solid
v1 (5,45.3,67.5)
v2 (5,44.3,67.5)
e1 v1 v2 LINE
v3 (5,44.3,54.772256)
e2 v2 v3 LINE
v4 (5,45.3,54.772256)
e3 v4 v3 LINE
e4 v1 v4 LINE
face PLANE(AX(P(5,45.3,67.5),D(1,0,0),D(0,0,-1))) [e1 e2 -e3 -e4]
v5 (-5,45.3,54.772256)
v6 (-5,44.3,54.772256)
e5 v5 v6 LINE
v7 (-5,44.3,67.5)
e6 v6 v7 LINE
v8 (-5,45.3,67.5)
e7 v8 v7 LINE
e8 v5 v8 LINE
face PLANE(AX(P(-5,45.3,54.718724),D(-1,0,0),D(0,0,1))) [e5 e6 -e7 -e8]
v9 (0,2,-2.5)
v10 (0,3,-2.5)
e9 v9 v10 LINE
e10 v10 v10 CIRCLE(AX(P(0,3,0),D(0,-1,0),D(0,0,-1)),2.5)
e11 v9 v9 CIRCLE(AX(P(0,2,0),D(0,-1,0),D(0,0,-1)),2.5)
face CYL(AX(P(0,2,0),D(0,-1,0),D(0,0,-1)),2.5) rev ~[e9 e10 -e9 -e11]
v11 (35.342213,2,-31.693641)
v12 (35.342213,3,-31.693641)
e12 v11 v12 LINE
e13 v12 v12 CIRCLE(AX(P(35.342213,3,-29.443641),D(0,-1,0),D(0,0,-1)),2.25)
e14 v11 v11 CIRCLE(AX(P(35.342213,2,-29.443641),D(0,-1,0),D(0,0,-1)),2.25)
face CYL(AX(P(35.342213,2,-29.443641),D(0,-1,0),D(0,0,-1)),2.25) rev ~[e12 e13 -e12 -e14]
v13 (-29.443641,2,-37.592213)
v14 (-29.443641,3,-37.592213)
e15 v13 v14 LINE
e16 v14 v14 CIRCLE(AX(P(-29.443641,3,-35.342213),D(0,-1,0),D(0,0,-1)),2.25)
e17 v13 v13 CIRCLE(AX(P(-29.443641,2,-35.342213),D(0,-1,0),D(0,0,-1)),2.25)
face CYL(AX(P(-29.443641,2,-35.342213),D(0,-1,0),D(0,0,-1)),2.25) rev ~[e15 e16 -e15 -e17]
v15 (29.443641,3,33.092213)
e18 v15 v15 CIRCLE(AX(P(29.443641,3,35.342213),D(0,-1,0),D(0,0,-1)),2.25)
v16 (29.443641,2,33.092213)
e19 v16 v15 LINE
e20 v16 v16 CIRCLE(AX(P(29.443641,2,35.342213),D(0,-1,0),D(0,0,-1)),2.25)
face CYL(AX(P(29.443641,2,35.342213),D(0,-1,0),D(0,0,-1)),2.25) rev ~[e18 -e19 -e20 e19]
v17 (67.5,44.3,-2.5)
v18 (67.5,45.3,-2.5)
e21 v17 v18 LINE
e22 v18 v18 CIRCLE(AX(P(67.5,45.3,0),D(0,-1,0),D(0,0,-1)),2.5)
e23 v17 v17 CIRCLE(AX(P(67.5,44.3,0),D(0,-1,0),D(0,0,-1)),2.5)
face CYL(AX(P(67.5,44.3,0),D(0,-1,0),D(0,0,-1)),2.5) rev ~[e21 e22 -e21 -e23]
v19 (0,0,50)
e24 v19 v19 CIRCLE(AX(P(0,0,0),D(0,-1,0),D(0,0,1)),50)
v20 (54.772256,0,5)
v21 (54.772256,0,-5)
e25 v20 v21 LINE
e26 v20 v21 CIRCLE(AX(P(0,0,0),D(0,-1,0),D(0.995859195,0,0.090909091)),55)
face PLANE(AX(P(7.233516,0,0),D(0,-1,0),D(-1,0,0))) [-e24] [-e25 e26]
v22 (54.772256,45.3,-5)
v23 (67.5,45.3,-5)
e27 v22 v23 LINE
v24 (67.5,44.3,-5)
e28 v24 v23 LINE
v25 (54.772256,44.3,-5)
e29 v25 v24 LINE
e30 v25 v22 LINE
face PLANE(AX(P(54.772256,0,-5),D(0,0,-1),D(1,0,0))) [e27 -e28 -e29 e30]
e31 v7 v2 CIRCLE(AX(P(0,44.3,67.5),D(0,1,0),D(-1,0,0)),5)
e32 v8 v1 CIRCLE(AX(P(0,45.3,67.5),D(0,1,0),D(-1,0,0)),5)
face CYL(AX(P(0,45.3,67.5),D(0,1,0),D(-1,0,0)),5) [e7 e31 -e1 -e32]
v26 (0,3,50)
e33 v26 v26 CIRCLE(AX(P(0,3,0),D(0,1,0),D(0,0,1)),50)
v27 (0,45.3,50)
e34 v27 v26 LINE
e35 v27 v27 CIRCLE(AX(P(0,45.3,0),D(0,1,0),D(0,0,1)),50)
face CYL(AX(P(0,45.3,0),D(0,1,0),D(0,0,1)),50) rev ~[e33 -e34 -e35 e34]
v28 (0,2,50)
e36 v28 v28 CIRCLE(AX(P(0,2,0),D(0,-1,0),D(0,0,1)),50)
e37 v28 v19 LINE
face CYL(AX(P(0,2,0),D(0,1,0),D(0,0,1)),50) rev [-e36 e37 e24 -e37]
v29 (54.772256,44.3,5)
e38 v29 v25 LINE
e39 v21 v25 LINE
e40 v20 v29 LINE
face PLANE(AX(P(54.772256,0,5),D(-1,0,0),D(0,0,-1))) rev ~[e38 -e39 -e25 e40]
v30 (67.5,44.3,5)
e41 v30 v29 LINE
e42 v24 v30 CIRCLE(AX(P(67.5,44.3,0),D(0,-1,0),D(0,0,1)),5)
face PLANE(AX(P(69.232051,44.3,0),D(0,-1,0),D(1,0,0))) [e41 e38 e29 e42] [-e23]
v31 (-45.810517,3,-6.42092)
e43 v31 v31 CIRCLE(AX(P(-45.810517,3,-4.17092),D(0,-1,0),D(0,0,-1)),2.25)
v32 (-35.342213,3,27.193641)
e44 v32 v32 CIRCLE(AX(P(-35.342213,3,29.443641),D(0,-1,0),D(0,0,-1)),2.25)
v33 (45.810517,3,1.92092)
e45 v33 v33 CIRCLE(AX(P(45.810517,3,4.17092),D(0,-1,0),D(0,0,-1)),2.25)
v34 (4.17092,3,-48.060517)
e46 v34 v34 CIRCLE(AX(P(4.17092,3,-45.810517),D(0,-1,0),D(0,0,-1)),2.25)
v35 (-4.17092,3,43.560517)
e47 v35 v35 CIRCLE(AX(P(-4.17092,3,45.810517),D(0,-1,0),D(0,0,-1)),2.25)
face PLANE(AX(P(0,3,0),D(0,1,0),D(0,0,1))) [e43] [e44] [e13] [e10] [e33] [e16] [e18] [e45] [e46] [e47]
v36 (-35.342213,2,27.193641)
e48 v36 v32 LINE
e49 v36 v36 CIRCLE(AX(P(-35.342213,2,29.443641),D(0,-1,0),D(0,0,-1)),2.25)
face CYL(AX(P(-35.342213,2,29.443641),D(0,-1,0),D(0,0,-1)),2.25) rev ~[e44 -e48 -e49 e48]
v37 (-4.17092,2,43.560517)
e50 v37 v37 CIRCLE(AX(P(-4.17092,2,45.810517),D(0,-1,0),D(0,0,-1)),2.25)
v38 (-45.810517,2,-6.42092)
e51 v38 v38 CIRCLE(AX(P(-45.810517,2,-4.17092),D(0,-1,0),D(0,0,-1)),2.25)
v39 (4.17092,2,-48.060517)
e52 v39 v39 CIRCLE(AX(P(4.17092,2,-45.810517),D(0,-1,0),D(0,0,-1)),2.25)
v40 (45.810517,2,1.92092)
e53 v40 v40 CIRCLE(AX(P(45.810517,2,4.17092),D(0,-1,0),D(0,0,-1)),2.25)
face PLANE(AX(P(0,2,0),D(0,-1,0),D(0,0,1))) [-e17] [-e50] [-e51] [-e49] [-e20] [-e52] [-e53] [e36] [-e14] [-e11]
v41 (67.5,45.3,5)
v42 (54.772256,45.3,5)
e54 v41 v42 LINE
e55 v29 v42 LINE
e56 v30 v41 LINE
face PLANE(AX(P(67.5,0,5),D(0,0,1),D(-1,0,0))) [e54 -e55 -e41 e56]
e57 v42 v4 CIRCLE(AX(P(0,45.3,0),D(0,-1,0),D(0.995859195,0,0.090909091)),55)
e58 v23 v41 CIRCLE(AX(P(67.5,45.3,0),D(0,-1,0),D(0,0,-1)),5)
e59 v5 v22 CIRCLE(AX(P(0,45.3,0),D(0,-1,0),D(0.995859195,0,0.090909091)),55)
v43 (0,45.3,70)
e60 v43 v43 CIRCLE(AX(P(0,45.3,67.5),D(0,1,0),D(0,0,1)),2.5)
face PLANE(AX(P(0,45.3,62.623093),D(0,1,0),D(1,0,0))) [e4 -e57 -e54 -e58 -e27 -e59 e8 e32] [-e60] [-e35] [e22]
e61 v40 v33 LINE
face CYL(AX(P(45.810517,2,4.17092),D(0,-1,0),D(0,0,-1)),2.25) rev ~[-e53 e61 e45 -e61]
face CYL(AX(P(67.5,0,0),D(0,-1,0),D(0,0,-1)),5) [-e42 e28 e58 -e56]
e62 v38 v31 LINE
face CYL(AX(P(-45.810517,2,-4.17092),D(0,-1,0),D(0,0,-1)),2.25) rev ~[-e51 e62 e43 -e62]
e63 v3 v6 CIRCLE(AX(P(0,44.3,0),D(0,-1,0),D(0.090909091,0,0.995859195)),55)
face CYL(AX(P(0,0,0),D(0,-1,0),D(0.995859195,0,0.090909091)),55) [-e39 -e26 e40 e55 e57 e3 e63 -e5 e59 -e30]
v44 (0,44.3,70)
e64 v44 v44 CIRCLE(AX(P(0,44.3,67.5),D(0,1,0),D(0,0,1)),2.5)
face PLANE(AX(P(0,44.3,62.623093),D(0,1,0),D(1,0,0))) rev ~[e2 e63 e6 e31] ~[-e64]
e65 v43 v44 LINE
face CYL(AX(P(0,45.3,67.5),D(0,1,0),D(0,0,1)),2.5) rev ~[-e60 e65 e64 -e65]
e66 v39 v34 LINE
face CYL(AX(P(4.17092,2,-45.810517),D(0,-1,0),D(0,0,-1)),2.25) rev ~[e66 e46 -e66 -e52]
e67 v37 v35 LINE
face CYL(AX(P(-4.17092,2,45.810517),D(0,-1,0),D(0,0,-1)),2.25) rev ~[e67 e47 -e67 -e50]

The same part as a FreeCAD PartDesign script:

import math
import FreeCAD as App
import Part
import Sketcher
from FreeCAD import Vector

doc = App.newDocument("Part")
params = doc.addObject("Spreadsheet::Sheet", "Params")
for row, (alias, value) in enumerate([
    ("sketch1_radius", "55 mm"),
    ("sketch1_radius2", "5 mm"),
    ("pad1_length", "45.3 mm"),
    ("sketch2_diameter", "100 mm"),
    ("pocket1_length", "42.3 mm"),
    ("sketch3_radius", "5 mm"),
    ("pocket2_length", "44.3 mm"),
    ("sketch4_diameter", "100 mm"),
    ("pocket3_length", "2 mm"),
    ("sketch5_diameter", "4.5 mm"),
    ("sketch6_diameter", "5 mm"),
    ("sketch7_diameter", "5 mm"),
    ("sketch8_radius", "5 mm"),
    ("pad2_length", "1 mm"),
    ("sketch9_diameter", "5 mm"),
    ("pocket7_length", "1 mm"),
], start=1):
    params.set(f"A{row}", alias)
    params.set(f"B{row}", "=" + value)
    params.setAlias(f"B{row}", alias)

body = doc.addObject("PartDesign::Body", "Body")

sketch1 = body.newObject("Sketcher::SketchObject", "Sketch")
sketch1.AttachmentSupport = (doc.getObject("XZ_Plane"), [""])
sketch1.MapMode = "FlatFace"
sketch1.addGeometry([
    Part.LineSegment(Vector(67.5, -5, 0), Vector(54.772256, -5, 0)),
    Part.ArcOfCircle(Part.Circle(Vector(0, 0, 0), Vector(0, 0, 1), 55), math.radians(5.215909), math.radians(354.784091)),
    Part.LineSegment(Vector(54.772256, 5, 0), Vector(67.5, 5, 0)),
    Part.ArcOfCircle(Part.Circle(Vector(67.5, 0, 0), Vector(0, 0, 1), 5), math.radians(-90), math.radians(90)),
], False)
sketch1.addConstraint([
    Sketcher.Constraint("Coincident", 0, 2, 1, 2),
    Sketcher.Constraint("Coincident", 1, 1, 2, 1),
    Sketcher.Constraint("Tangent", 2, 2, 3, 2),
    Sketcher.Constraint("Tangent", 3, 1, 0, 1),
    Sketcher.Constraint("Horizontal", 0),
    Sketcher.Constraint("Horizontal", 2),
    Sketcher.Constraint("Coincident", 1, 3, -1, 1),
    Sketcher.Constraint("PointOnObject", 3, 3, -1),
    Sketcher.Constraint("Radius", 1, 55.0),
    Sketcher.Constraint("Radius", 3, 5.0),
    Sketcher.Constraint("DistanceX", -1, 1, 3, 3, 67.5),
])
sketch1.setExpression("Constraints[8]", "Params.sketch1_radius")
sketch1.setExpression("Constraints[9]", "Params.sketch1_radius2")
pad1 = body.newObject("PartDesign::Pad", "Pad")
pad1.Profile = sketch1
pad1.setExpression("Length", "Params.pad1_length")
pad1.Reversed = True

sketch2 = body.newObject("Sketcher::SketchObject", "Sketch001")
sketch2.AttachmentSupport = (doc.getObject("XZ_Plane"), [""])
sketch2.MapMode = "FlatFace"
sketch2.AttachmentOffset = App.Placement(Vector(0, 0, -45.3), App.Rotation())
sketch2.addGeometry(Part.Circle(Vector(0, 0, 0), Vector(0, 0, 1), 50), False)
sketch2.addConstraint([
    Sketcher.Constraint("Coincident", 0, 3, -1, 1),
    Sketcher.Constraint("Diameter", 0, 100.0),
])
sketch2.setExpression("Constraints[1]", "Params.sketch2_diameter")
pocket1 = body.newObject("PartDesign::Pocket", "Pocket")
pocket1.Profile = sketch2
pocket1.setExpression("Length", "Params.pocket1_length")
pocket1.Reversed = True

sketch3 = body.newObject("Sketcher::SketchObject", "Sketch002")
sketch3.AttachmentSupport = (doc.getObject("XZ_Plane"), [""])
sketch3.MapMode = "FlatFace"
sketch3.addGeometry([
    Part.ArcOfCircle(Part.Circle(Vector(67.5, 0, 0), Vector(0, 0, 1), 5), math.radians(-90), math.radians(90)),
    Part.LineSegment(Vector(67.5, 5, 0), Vector(54.772256, 5, 0)),
    Part.LineSegment(Vector(54.772256, 5, 0), Vector(54.772256, -5, 0)),
    Part.LineSegment(Vector(54.772256, -5, 0), Vector(67.5, -5, 0)),
], False)
sketch3.addConstraint([
    Sketcher.Constraint("Tangent", 0, 2, 1, 1),
    Sketcher.Constraint("Coincident", 1, 2, 2, 1),
    Sketcher.Constraint("Coincident", 2, 2, 3, 1),
    Sketcher.Constraint("Tangent", 3, 2, 0, 1),
    Sketcher.Constraint("Horizontal", 1),
    Sketcher.Constraint("Vertical", 2),
    Sketcher.Constraint("Horizontal", 3),
    Sketcher.Constraint("PointOnObject", 0, 3, -1),
    Sketcher.Constraint("Radius", 0, 5.0),
    Sketcher.Constraint("DistanceX", -1, 1, 0, 3, 67.5),
    Sketcher.Constraint("DistanceX", 1, 2, 1, 1, 12.727744),
])
sketch3.setExpression("Constraints[8]", "Params.sketch3_radius")
pocket2 = body.newObject("PartDesign::Pocket", "Pocket001")
pocket2.Profile = sketch3
pocket2.setExpression("Length", "Params.pocket2_length")

sketch4 = body.newObject("Sketcher::SketchObject", "Sketch003")
sketch4.AttachmentSupport = (doc.getObject("XZ_Plane"), [""])
sketch4.MapMode = "FlatFace"
sketch4.AttachmentOffset = App.Placement(Vector(0, 0, -2), App.Rotation())
sketch4.addGeometry(Part.Circle(Vector(0, 0, 0), Vector(0, 0, 1), 50), False)
sketch4.addConstraint([
    Sketcher.Constraint("Coincident", 0, 3, -1, 1),
    Sketcher.Constraint("Diameter", 0, 100.0),
])
sketch4.setExpression("Constraints[1]", "Params.sketch4_diameter")
pocket3 = body.newObject("PartDesign::Pocket", "Pocket002")
pocket3.Profile = sketch4
pocket3.setExpression("Length", "Params.pocket3_length")
pocket3.Reversed = True

sketch5 = body.newObject("Sketcher::SketchObject", "Sketch004")
sketch5.AttachmentSupport = (doc.getObject("XZ_Plane"), [""])
sketch5.MapMode = "FlatFace"
sketch5.AttachmentOffset = App.Placement(Vector(0, 0, -2), App.Rotation())
sketch5.addGeometry([
    Part.Circle(Vector(4.17092, -45.810517, 0), Vector(0, 0, 1), 2.25),
    Part.Circle(Vector(-29.443641, -35.342213, 0), Vector(0, 0, 1), 2.25),
    Part.Circle(Vector(-45.810517, -4.17092, 0), Vector(0, 0, 1), 2.25),
    Part.Circle(Vector(-35.342213, 29.443641, 0), Vector(0, 0, 1), 2.25),
    Part.Circle(Vector(-4.17092, 45.810517, 0), Vector(0, 0, 1), 2.25),
    Part.Circle(Vector(29.443641, 35.342213, 0), Vector(0, 0, 1), 2.25),
    Part.Circle(Vector(45.810517, 4.17092, 0), Vector(0, 0, 1), 2.25),
    Part.Circle(Vector(35.342213, -29.443641, 0), Vector(0, 0, 1), 2.25),
], False)
sketch5.addConstraint([
    Sketcher.Constraint("Equal", 0, 1),
    Sketcher.Constraint("Equal", 1, 2),
    Sketcher.Constraint("Equal", 2, 3),
    Sketcher.Constraint("Equal", 3, 4),
    Sketcher.Constraint("Equal", 4, 5),
    Sketcher.Constraint("Equal", 5, 6),
    Sketcher.Constraint("Equal", 6, 7),
    Sketcher.Constraint("Symmetric", 0, 3, 4, 3, -1, 1),
    Sketcher.Constraint("Symmetric", 1, 3, 5, 3, -1, 1),
    Sketcher.Constraint("Symmetric", 2, 3, 6, 3, -1, 1),
    Sketcher.Constraint("Symmetric", 3, 3, 7, 3, -1, 1),
    Sketcher.Constraint("Diameter", 0, 4.5),
    Sketcher.Constraint("DistanceX", -1, 1, 0, 3, 4.17092),
    Sketcher.Constraint("DistanceX", 1, 3, -1, 1, 29.443641),
    Sketcher.Constraint("DistanceY", 2, 3, -1, 1, 4.17092),
    Sketcher.Constraint("DistanceY", -1, 1, 3, 3, 29.443641),
    Sketcher.Constraint("DistanceX", 3, 3, 1, 3, 5.898572),
    Sketcher.Constraint("DistanceY", 1, 3, 4, 3, 81.152729),
    Sketcher.Constraint("DistanceY", 3, 3, 5, 3, 5.898572),
    Sketcher.Constraint("DistanceX", 3, 3, 6, 3, 81.152729),
])
sketch5.setExpression("Constraints[11]", "Params.sketch5_diameter")
pocket4 = body.newObject("PartDesign::Pocket", "Pocket003")
pocket4.Profile = sketch5
pocket4.Type = "ThroughAll"

sketch6 = body.newObject("Sketcher::SketchObject", "Sketch005")
sketch6.AttachmentSupport = (doc.getObject("XZ_Plane"), [""])
sketch6.MapMode = "FlatFace"
sketch6.AttachmentOffset = App.Placement(Vector(0, 0, -2), App.Rotation())
sketch6.addGeometry(Part.Circle(Vector(0, 0, 0), Vector(0, 0, 1), 2.5), False)
sketch6.addConstraint([
    Sketcher.Constraint("Coincident", 0, 3, -1, 1),
    Sketcher.Constraint("Diameter", 0, 5.0),
])
sketch6.setExpression("Constraints[1]", "Params.sketch6_diameter")
pocket5 = body.newObject("PartDesign::Pocket", "Pocket004")
pocket5.Profile = sketch6
pocket5.Type = "ThroughAll"

sketch7 = body.newObject("Sketcher::SketchObject", "Sketch006")
sketch7.AttachmentSupport = (doc.getObject("XZ_Plane"), [""])
sketch7.MapMode = "FlatFace"
sketch7.AttachmentOffset = App.Placement(Vector(0, 0, -44.3), App.Rotation())
sketch7.addGeometry(Part.Circle(Vector(67.5, 0, 0), Vector(0, 0, 1), 2.5), False)
sketch7.addConstraint([
    Sketcher.Constraint("PointOnObject", 0, 3, -1),
    Sketcher.Constraint("Diameter", 0, 5.0),
    Sketcher.Constraint("DistanceX", -1, 1, 0, 3, 67.5),
])
sketch7.setExpression("Constraints[1]", "Params.sketch7_diameter")
pocket6 = body.newObject("PartDesign::Pocket", "Pocket005")
pocket6.Profile = sketch7
pocket6.Type = "ThroughAll"

sketch8 = body.newObject("Sketcher::SketchObject", "Sketch007")
sketch8.AttachmentSupport = (doc.getObject("XZ_Plane"), [""])
sketch8.MapMode = "FlatFace"
sketch8.AttachmentOffset = App.Placement(Vector(0, 0, -45.3), App.Rotation())
sketch8.addGeometry([
    Part.LineSegment(Vector(5, 67.5, 0), Vector(5, 54.718724, 0)),
    Part.LineSegment(Vector(5, 54.718724, 0), Vector(0, 55, 0)),
    Part.LineSegment(Vector(0, 55, 0), Vector(-5, 54.718724, 0)),
    Part.LineSegment(Vector(-5, 54.718724, 0), Vector(-5, 67.5, 0)),
    Part.ArcOfCircle(Part.Circle(Vector(0, 67.5, 0), Vector(0, 0, 1), 5), math.radians(0), math.radians(180)),
], False)
sketch8.addConstraint([
    Sketcher.Constraint("Coincident", 0, 2, 1, 1),
    Sketcher.Constraint("Coincident", 1, 2, 2, 1),
    Sketcher.Constraint("Coincident", 2, 2, 3, 1),
    Sketcher.Constraint("Tangent", 3, 2, 4, 2),
    Sketcher.Constraint("Tangent", 4, 1, 0, 1),
    Sketcher.Constraint("Vertical", 0),
    Sketcher.Constraint("Vertical", 3),
    Sketcher.Constraint("Symmetric", 0, 2, 2, 2, -2),
    Sketcher.Constraint("PointOnObject", 1, 2, -2),
    Sketcher.Constraint("Radius", 4, 5.0),
    Sketcher.Constraint("DistanceY", -1, 1, 1, 2, 55.0),
    Sketcher.Constraint("DistanceY", -1, 1, 4, 3, 67.5),
    Sketcher.Constraint("DistanceY", 0, 2, 0, 1, 12.781276),
])
sketch8.setExpression("Constraints[9]", "Params.sketch8_radius")
pad2 = body.newObject("PartDesign::Pad", "Pad001")
pad2.Profile = sketch8
pad2.setExpression("Length", "Params.pad2_length")

sketch9 = body.newObject("Sketcher::SketchObject", "Sketch008")
sketch9.AttachmentSupport = (doc.getObject("XZ_Plane"), [""])
sketch9.MapMode = "FlatFace"
sketch9.AttachmentOffset = App.Placement(Vector(0, 0, -45.3), App.Rotation())
sketch9.addGeometry(Part.Circle(Vector(0, 67.5, 0), Vector(0, 0, 1), 2.5), False)
sketch9.addConstraint([
    Sketcher.Constraint("PointOnObject", 0, 3, -2),
    Sketcher.Constraint("Diameter", 0, 5.0),
    Sketcher.Constraint("DistanceY", -1, 1, 0, 3, 67.5),
])
sketch9.setExpression("Constraints[1]", "Params.sketch9_diameter")
pocket7 = body.newObject("PartDesign::Pocket", "Pocket006")
pocket7.Profile = sketch9
pocket7.setExpression("Length", "Params.pocket7_length")
pocket7.Reversed = True

doc.recompute()
